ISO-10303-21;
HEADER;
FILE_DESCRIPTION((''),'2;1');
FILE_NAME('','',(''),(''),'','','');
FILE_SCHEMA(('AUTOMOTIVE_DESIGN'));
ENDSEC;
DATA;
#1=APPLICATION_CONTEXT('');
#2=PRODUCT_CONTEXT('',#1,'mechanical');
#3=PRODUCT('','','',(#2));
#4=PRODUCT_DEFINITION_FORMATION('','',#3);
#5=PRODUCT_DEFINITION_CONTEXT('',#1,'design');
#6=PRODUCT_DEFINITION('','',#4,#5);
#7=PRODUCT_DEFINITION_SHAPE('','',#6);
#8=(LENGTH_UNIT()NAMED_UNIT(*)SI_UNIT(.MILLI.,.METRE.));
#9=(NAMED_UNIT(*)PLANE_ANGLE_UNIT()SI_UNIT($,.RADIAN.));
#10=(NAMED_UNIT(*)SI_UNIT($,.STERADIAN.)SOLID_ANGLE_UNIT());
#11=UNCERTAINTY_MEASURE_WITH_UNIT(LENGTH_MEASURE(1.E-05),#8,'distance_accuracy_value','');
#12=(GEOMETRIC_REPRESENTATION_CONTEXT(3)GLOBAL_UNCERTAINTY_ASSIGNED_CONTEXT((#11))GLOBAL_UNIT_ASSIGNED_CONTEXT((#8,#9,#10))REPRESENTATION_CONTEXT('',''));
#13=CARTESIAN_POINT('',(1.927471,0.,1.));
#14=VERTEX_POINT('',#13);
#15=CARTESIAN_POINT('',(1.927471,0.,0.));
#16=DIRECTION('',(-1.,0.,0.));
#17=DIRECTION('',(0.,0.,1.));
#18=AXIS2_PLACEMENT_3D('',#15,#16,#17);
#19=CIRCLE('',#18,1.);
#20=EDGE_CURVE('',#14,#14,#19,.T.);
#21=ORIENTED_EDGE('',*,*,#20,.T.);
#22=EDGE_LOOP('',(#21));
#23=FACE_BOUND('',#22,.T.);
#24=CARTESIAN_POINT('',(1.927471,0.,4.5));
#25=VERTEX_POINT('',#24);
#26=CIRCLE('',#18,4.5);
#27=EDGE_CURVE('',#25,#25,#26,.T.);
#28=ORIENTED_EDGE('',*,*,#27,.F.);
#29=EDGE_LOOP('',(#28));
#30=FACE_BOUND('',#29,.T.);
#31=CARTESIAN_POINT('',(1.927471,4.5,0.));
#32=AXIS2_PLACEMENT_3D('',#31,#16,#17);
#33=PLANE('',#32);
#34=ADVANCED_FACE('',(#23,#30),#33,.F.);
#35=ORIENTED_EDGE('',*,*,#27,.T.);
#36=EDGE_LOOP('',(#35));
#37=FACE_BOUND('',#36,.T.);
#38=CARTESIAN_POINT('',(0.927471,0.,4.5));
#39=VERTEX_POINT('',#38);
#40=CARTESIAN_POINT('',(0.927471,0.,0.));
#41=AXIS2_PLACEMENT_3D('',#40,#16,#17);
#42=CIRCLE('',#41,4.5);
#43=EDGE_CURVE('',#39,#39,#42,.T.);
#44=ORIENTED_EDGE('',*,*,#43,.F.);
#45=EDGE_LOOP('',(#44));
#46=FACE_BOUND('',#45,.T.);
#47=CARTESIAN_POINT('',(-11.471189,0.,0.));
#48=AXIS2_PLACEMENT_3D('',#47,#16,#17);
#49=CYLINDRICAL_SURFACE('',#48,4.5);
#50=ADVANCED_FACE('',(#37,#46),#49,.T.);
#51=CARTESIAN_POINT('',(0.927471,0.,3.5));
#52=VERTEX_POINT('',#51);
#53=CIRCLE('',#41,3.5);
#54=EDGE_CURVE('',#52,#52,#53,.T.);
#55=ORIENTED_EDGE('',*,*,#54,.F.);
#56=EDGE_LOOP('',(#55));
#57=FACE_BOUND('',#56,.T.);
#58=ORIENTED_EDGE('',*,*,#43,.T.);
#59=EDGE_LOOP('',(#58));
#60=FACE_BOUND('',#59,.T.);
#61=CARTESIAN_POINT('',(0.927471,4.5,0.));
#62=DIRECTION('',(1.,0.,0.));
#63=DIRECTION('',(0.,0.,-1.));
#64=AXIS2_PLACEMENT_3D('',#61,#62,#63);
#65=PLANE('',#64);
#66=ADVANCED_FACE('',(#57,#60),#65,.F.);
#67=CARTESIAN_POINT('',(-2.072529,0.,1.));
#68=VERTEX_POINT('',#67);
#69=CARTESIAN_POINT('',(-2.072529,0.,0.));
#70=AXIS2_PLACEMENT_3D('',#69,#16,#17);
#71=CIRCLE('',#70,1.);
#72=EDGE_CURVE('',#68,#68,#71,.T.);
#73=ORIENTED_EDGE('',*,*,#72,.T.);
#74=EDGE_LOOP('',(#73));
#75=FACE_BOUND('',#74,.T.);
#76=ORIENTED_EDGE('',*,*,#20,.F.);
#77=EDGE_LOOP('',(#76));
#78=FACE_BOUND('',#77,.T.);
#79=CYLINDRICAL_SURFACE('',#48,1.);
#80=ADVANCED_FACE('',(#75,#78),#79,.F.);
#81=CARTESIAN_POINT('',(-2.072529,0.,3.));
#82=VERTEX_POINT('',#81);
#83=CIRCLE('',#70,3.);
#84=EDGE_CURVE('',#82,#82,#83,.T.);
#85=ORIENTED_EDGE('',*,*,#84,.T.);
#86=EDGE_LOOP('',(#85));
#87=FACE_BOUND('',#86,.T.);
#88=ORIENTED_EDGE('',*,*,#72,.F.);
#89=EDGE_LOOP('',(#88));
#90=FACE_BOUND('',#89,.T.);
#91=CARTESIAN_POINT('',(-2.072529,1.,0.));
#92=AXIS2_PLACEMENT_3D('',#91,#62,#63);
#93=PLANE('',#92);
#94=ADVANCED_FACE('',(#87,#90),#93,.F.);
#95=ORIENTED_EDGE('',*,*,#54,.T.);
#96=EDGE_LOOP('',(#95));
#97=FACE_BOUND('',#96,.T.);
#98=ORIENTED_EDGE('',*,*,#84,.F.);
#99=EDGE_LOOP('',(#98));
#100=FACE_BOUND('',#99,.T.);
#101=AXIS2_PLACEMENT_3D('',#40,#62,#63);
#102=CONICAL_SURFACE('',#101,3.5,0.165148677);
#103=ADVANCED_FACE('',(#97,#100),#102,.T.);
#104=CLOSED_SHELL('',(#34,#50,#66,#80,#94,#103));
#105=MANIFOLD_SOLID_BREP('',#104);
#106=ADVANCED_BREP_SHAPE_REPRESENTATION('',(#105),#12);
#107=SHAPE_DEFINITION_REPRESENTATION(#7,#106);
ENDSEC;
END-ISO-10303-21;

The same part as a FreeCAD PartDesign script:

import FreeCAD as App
import Part
import Sketcher
from FreeCAD import Vector
Q = App.Units.Quantity

doc = App.newDocument("Part")
body = doc.addObject("PartDesign::Body", "Body")

sketch1 = body.newObject("Sketcher::SketchObject", "Sketch")
sketch1.AttachmentSupport = (doc.getObject("XY_Plane"), [""])
sketch1.MapMode = "FlatFace"
sketch1.addGeometry(Part.LineSegment(Vector(1.927471, 4.5, 0), Vector(0.927471, 4.5, 0)), False)
sketch1.addGeometry(Part.LineSegment(Vector(0.927471, 4.5, 0), Vector(0.927471, 3.5, 0)), False)
sketch1.addGeometry(Part.LineSegment(Vector(0.927471, 3.5, 0), Vector(-2.072529, 3, 0)), False)
sketch1.addGeometry(Part.LineSegment(Vector(-2.072529, 3, 0), Vector(-2.072529, 1, 0)), False)
sketch1.addGeometry(Part.LineSegment(Vector(-2.072529, 1, 0), Vector(1.927471, 1, 0)), False)
sketch1.addGeometry(Part.LineSegment(Vector(1.927471, 1, 0), Vector(1.927471, 4.5, 0)), False)
sketch1.addConstraint(Sketcher.Constraint("Coincident", 0, 2, 1, 1))
sketch1.addConstraint(Sketcher.Constraint("Coincident", 1, 2, 2, 1))
sketch1.addConstraint(Sketcher.Constraint("Coincident", 2, 2, 3, 1))
sketch1.addConstraint(Sketcher.Constraint("Coincident", 3, 2, 4, 1))
sketch1.addConstraint(Sketcher.Constraint("Coincident", 4, 2, 5, 1))
sketch1.addConstraint(Sketcher.Constraint("Coincident", 5, 2, 0, 1))
sketch1.addConstraint(Sketcher.Constraint("Horizontal", 0))
sketch1.addConstraint(Sketcher.Constraint("Vertical", 1))
sketch1.addConstraint(Sketcher.Constraint("Vertical", 3))
sketch1.addConstraint(Sketcher.Constraint("Horizontal", 4))
sketch1.addConstraint(Sketcher.Constraint("Vertical", 5))
sketch1.addConstraint(Sketcher.Constraint("Equal", 0, 1))
sketch1.addConstraint(Sketcher.Constraint("DistanceX", 0, 2, 0, 1, Q("1 mm")))
sketch1.addConstraint(Sketcher.Constraint("DistanceX", 4, 1, 4, 2, Q("4 mm")))
sketch1.addConstraint(Sketcher.Constraint("DistanceY", 3, 2, 3, 1, Q("2 mm")))
sketch1.addConstraint(Sketcher.Constraint("DistanceY", 5, 1, 5, 2, Q("3.5 mm")))
sketch1.addConstraint(Sketcher.Constraint("DistanceY", -1, 1, 2, 2, Q("3 mm")))
sketch1.addConstraint(Sketcher.Constraint("DistanceX", -1, 1, 0, 2, Q("0.927471 mm")))
revolution = body.newObject("PartDesign::Revolution", "Revolution")
revolution.Profile = sketch1
revolution.ReferenceAxis = (sketch1, ["H_Axis"])
revolution.Angle = 360

doc.recompute()
